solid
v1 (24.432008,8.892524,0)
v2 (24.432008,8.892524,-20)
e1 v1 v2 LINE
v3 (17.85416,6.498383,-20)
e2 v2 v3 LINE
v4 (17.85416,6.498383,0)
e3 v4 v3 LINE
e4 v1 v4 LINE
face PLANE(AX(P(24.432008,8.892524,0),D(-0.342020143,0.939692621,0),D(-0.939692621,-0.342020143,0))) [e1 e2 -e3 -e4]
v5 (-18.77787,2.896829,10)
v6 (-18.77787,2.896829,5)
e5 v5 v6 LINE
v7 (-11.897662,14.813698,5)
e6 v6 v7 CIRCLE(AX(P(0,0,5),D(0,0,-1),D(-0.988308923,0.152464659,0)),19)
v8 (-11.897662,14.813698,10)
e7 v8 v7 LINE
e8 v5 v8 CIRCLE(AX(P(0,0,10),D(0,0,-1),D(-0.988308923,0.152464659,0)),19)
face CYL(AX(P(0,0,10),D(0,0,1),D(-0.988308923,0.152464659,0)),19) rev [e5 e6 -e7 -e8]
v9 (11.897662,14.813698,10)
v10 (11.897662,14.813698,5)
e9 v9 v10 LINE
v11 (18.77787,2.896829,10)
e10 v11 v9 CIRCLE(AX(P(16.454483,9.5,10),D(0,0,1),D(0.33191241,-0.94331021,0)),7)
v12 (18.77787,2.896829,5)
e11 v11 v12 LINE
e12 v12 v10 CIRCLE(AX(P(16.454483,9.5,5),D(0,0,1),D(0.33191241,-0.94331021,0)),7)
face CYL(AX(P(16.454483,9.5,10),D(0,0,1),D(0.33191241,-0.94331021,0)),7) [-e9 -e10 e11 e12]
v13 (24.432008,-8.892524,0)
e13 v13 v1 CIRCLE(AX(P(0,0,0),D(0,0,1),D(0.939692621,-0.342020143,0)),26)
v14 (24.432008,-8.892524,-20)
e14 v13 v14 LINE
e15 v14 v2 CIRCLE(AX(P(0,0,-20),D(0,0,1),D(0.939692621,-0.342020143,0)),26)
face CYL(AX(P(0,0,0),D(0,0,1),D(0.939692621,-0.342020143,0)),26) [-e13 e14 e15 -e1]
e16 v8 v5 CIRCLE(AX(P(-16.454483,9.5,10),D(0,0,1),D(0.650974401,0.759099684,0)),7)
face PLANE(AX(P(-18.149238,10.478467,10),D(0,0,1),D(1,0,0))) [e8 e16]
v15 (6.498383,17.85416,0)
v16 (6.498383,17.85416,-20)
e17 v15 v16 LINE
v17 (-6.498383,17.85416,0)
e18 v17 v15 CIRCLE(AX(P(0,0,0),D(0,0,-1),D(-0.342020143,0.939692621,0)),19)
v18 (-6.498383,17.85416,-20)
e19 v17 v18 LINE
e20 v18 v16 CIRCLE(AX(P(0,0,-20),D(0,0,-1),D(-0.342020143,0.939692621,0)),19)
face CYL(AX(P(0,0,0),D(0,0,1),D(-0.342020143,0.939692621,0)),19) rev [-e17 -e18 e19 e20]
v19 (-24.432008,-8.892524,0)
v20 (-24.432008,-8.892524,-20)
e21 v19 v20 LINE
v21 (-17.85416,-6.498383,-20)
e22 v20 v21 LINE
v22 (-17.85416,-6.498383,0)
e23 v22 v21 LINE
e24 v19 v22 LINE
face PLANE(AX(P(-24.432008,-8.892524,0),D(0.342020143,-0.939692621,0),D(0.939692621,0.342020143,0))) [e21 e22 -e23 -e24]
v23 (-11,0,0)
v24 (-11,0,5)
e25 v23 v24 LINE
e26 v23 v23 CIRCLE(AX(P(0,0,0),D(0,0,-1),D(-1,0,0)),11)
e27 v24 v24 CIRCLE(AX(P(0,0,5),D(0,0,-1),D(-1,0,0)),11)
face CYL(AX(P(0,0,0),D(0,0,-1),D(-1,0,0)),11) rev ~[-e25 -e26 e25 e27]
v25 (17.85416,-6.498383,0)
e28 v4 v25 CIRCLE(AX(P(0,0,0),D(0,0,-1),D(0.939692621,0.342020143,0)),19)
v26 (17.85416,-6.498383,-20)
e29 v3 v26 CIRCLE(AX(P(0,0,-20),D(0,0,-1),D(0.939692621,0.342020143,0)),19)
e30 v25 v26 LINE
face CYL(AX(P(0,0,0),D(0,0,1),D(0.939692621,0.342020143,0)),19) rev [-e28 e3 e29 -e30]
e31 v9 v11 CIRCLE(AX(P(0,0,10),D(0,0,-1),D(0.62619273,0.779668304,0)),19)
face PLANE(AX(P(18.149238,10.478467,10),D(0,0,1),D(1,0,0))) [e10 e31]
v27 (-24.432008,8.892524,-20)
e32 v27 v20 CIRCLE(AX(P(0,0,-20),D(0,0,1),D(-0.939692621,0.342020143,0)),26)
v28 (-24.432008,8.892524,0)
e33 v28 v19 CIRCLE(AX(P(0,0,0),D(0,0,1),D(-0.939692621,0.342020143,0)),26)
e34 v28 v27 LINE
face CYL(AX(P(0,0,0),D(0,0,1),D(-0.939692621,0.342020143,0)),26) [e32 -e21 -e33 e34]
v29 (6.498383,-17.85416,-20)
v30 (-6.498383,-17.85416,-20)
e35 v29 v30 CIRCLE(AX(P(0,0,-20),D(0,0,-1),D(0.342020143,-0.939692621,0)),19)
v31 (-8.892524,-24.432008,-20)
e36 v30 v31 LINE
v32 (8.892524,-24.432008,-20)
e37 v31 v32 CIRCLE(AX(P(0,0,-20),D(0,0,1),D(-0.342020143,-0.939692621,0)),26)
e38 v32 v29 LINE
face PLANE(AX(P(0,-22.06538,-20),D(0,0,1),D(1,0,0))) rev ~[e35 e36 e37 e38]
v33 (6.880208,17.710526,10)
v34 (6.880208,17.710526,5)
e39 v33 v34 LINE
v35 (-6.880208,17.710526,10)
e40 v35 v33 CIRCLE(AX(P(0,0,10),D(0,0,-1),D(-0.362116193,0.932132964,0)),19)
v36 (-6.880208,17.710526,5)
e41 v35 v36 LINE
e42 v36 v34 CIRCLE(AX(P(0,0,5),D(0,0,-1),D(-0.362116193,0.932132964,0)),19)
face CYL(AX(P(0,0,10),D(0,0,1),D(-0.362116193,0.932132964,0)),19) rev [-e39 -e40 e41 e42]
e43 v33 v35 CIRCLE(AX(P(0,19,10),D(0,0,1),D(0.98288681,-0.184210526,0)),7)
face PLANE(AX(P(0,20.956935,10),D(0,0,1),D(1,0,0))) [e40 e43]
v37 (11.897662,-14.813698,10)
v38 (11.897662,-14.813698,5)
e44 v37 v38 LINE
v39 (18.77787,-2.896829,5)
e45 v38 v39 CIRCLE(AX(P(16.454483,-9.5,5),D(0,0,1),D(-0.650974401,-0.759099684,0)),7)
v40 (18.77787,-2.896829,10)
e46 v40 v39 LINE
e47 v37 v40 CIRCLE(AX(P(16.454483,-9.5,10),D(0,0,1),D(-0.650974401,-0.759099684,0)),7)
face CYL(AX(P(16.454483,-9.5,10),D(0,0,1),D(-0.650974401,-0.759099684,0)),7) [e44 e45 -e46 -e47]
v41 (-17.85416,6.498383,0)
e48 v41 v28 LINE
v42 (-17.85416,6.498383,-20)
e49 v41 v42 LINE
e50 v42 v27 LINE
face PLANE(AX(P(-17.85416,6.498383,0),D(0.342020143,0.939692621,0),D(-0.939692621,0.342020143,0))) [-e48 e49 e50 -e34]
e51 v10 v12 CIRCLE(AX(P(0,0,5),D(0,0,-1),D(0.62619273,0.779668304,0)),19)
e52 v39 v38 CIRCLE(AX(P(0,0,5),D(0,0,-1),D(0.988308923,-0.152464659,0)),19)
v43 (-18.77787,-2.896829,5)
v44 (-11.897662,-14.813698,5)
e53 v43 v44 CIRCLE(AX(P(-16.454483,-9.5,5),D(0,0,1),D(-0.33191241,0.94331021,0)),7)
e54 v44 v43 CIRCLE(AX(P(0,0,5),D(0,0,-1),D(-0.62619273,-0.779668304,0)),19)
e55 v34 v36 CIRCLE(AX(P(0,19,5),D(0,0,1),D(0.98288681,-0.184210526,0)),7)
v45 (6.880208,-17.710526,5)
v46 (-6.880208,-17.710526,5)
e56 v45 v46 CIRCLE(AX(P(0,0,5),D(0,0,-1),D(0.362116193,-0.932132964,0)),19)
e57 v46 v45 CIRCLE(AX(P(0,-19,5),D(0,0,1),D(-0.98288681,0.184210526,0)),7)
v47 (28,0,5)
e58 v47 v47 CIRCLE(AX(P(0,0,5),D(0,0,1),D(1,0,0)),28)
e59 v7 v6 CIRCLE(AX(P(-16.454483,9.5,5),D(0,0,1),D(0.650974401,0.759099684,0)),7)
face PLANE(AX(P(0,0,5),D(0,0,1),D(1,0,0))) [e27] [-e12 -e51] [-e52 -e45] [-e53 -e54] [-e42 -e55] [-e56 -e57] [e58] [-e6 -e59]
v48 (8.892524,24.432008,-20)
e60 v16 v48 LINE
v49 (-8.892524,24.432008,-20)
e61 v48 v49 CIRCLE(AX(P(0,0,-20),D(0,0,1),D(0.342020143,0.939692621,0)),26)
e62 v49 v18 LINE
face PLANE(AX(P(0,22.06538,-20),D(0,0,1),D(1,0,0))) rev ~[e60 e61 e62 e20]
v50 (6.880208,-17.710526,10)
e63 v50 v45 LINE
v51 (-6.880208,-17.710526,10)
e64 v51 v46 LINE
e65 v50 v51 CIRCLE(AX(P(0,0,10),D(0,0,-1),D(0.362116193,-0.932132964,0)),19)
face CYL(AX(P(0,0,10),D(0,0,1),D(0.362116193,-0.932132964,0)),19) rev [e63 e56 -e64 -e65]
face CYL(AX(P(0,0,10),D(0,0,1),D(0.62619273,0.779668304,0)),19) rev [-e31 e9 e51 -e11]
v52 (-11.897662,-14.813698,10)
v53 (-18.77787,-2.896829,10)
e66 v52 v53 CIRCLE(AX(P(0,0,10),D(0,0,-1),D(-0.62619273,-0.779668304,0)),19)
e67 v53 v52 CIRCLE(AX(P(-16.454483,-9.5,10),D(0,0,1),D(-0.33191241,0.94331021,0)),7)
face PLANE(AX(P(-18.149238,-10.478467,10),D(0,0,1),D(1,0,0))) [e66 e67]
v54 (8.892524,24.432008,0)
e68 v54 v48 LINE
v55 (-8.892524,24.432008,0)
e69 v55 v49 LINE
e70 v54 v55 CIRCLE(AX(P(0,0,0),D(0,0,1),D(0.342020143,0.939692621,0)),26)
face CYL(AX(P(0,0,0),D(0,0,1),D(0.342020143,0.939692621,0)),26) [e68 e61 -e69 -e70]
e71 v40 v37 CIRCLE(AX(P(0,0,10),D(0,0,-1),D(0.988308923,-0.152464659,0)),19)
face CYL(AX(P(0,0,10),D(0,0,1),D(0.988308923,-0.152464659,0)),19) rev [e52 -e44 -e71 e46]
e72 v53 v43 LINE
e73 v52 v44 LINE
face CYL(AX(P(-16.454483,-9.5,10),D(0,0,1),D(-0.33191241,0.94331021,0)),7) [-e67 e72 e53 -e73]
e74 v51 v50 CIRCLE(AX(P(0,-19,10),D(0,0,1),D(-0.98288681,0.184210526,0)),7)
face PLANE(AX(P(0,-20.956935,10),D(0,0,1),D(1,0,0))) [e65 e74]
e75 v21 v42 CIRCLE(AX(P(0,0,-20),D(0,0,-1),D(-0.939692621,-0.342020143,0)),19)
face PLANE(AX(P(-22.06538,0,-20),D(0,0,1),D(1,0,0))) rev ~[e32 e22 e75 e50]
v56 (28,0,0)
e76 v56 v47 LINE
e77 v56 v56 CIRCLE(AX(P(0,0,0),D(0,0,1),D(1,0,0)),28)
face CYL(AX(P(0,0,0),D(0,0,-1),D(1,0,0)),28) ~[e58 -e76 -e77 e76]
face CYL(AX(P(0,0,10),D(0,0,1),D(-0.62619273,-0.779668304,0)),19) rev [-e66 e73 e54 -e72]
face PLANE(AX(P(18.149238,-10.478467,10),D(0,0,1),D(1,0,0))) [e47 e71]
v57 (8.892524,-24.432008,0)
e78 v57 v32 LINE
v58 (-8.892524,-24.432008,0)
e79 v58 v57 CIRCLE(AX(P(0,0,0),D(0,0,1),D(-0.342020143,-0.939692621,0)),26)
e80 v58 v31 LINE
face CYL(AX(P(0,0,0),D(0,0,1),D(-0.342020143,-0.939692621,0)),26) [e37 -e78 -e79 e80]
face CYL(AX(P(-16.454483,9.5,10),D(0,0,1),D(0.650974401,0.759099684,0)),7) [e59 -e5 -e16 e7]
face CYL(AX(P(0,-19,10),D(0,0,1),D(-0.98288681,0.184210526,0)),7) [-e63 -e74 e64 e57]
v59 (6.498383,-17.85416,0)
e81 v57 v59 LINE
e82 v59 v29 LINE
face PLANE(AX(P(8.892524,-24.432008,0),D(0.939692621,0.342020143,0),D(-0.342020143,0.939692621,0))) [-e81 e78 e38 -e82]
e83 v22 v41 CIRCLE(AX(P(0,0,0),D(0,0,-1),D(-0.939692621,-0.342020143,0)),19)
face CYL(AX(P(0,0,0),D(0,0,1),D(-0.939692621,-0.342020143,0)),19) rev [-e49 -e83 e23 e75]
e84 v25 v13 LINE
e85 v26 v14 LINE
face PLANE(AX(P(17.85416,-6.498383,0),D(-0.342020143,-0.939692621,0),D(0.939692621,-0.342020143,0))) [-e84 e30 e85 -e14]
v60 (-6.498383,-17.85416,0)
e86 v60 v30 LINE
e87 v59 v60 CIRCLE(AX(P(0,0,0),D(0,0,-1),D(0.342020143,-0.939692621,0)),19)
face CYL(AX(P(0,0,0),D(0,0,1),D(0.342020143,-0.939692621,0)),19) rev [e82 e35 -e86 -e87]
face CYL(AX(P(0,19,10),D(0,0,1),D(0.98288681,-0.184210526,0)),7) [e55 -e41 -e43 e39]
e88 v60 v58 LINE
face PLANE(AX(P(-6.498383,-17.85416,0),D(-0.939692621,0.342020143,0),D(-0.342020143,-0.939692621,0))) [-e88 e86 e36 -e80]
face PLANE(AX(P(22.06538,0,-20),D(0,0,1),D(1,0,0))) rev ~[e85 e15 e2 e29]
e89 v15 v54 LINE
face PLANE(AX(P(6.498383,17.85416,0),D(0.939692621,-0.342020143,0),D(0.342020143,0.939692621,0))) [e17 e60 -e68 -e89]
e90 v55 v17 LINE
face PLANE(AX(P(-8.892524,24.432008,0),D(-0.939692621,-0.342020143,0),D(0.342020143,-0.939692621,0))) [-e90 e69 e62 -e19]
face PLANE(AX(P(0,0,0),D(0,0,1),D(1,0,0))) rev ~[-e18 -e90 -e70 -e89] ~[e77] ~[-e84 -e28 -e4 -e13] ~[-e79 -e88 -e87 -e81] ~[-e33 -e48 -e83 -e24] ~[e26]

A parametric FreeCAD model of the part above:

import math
import FreeCAD as App
import Part
import Sketcher

V = App.Vector
Q = App.Units.Quantity

doc = App.newDocument("Part")
body = doc.addObject("PartDesign::Body", "Body")

sketch1 = body.newObject("Sketcher::SketchObject", "Sketch")
sketch1.AttachmentSupport = (doc.getObject("XY_Plane"), [""])
sketch1.MapMode = "FlatFace"
sketch1.addGeometry(Part.Circle(V(0, 0, 0), V(0, 0, 1), 28), False)
sketch1.addConstraint([
    Sketcher.Constraint("Coincident", 0, 3, -1, 1),
    Sketcher.Constraint("Diameter", 0, 56.0),
])
pad1 = body.newObject("PartDesign::Pad", "Pad")
pad1.Profile = sketch1
pad1.Length = 5

sketch2 = body.newObject("Sketcher::SketchObject", "Sketch001")
sketch2.AttachmentSupport = (doc.getObject("XY_Plane"), [""])
sketch2.MapMode = "FlatFace"
sketch2.addGeometry([
    Part.LineSegment(V(9, 24, 0), V(6, 18, 0)),
    Part.ArcOfCircle(Part.Circle(V(0, 0, 0), V(0, 0, 1), 19), math.radians(70), math.radians(110)),
    Part.LineSegment(V(-6, 18, 0), V(-9, 24, 0)),
    Part.ArcOfCircle(Part.Circle(V(0, 0, 0), V(0, 0, 1), 26), math.radians(70), math.radians(110)),
    Part.LineSegment(V(-24, 9, 0), V(-18, 6, 0)),
    Part.ArcOfCircle(Part.Circle(V(0, 0, 0), V(0, 0, 1), 19), math.radians(160), math.radians(200)),
    Part.LineSegment(V(-18, -6, 0), V(-24, -9, 0)),
    Part.ArcOfCircle(Part.Circle(V(0, 0, 0), V(0, 0, 1), 26), math.radians(160), math.radians(200)),
    Part.LineSegment(V(-9, -24, 0), V(-6, -18, 0)),
    Part.ArcOfCircle(Part.Circle(V(0, 0, 0), V(0, 0, 1), 19), math.radians(-110), math.radians(-70)),
    Part.LineSegment(V(6, -18, 0), V(9, -24, 0)),
    Part.ArcOfCircle(Part.Circle(V(0, 0, 0), V(0, 0, 1), 26), math.radians(-110), math.radians(-70)),
    Part.LineSegment(V(24, -9, 0), V(18, -6, 0)),
    Part.ArcOfCircle(Part.Circle(V(0, 0, 0), V(0, 0, 1), 19), math.radians(-20), math.radians(20)),
    Part.LineSegment(V(18, 6, 0), V(24, 9, 0)),
    Part.ArcOfCircle(Part.Circle(V(0, 0, 0), V(0, 0, 1), 26), math.radians(-20), math.radians(20)),
], False)
sketch2.addConstraint([
    Sketcher.Constraint("Coincident", 0, 2, 1, 1),
    Sketcher.Constraint("Coincident", 1, 2, 2, 1),
    Sketcher.Constraint("Coincident", 2, 2, 3, 2),
    Sketcher.Constraint("Coincident", 3, 1, 0, 1),
    Sketcher.Constraint("Coincident", 4, 2, 5, 1),
    Sketcher.Constraint("Coincident", 5, 2, 6, 1),
    Sketcher.Constraint("Coincident", 6, 2, 7, 2),
    Sketcher.Constraint("Coincident", 7, 1, 4, 1),
    Sketcher.Constraint("Coincident", 8, 2, 9, 1),
    Sketcher.Constraint("Coincident", 9, 2, 10, 1),
    Sketcher.Constraint("Coincident", 10, 2, 11, 2),
    Sketcher.Constraint("Coincident", 11, 1, 8, 1),
    Sketcher.Constraint("Coincident", 12, 2, 13, 1),
    Sketcher.Constraint("Coincident", 13, 2, 14, 1),
    Sketcher.Constraint("Coincident", 14, 2, 15, 2),
    Sketcher.Constraint("Coincident", 15, 1, 12, 1),
    Sketcher.Constraint("Coincident", 1, 3, -1, 1),
    Sketcher.Constraint("Coincident", 3, 3, -1, 1),
    Sketcher.Constraint("Coincident", 5, 3, -1, 1),
    Sketcher.Constraint("Coincident", 7, 3, -1, 1),
    Sketcher.Constraint("Coincident", 9, 3, -1, 1),
    Sketcher.Constraint("Coincident", 11, 3, -1, 1),
    Sketcher.Constraint("Coincident", 13, 3, -1, 1),
    Sketcher.Constraint("Coincident", 15, 3, -1, 1),
    Sketcher.Constraint("Equal", 1, 5),
    Sketcher.Constraint("Equal", 3, 7),
    Sketcher.Constraint("Equal", 5, 9),
    Sketcher.Constraint("Equal", 7, 11),
    Sketcher.Constraint("Equal", 9, 13),
    Sketcher.Constraint("Equal", 11, 15),
    Sketcher.Constraint("Perpendicular", 0, 4),
    Sketcher.Constraint("Perpendicular", 2, 6),
    Sketcher.Constraint("Perpendicular", 4, 8),
    Sketcher.Constraint("Perpendicular", 6, 10),
    Sketcher.Constraint("Perpendicular", 8, 12),
    Sketcher.Constraint("Perpendicular", 10, 14),
    Sketcher.Constraint("Horizontal", 0, 2, 1, 2),
    Sketcher.Constraint("Horizontal", 2, 2, 3, 1),
    Sketcher.Constraint("Horizontal", 8, 2, 9, 2),
    Sketcher.Constraint("Horizontal", 5, 2, 12, 2),
    Sketcher.Constraint("Horizontal", 4, 2, 13, 2),
    Sketcher.Constraint("Vertical", 4, 2, 5, 2),
    Sketcher.Constraint("Vertical", 1, 2, 8, 2),
    Sketcher.Constraint("Radius", 1, 19.0),
    Sketcher.Constraint("Radius", 3, 26.0),
    Sketcher.Constraint("Angle", 0, Q("-110 deg")),
    Sketcher.Constraint("DistanceY", -1, 1, 0, 2, 17.85416),
    Sketcher.Constraint("DistanceX", 4, 2, -1, 1, 17.85416),
])
pad2 = body.newObject("PartDesign::Pad", "Pad001")
pad2.Profile = sketch2
pad2.Length = 20
pad2.Reversed = True

sketch3 = body.newObject("Sketcher::SketchObject", "Sketch002")
sketch3.AttachmentSupport = (doc.getObject("XY_Plane"), [""])
sketch3.MapMode = "FlatFace"
sketch3.addGeometry(Part.Circle(V(0, 0, 0), V(0, 0, 1), 11), False)
sketch3.addConstraint([
    Sketcher.Constraint("Coincident", 0, 3, -1, 1),
    Sketcher.Constraint("Diameter", 0, 22.0),
])
pocket1 = body.newObject("PartDesign::Pocket", "Pocket")
pocket1.Profile = sketch3
pocket1.Length = 5
pocket1.Reversed = True

sketch4 = body.newObject("Sketcher::SketchObject", "Sketch003")
sketch4.AttachmentSupport = (doc.getObject("XY_Plane"), [""])
sketch4.MapMode = "FlatFace"
sketch4.AttachmentOffset = App.Placement(V(0, 0, 10), App.Rotation())
sketch4.addGeometry([
    Part.ArcOfCircle(Part.Circle(V(0, 19, 0), V(0, 0, 1), 7), math.radians(-11), math.radians(191)),
    Part.ArcOfCircle(Part.Circle(V(0, 0, 0), V(0, 0, 1), 19), math.radians(69), math.radians(111)),
    Part.ArcOfCircle(Part.Circle(V(16, 10, 0), V(0, 0, 1), 7), math.radians(-71), math.radians(131)),
    Part.ArcOfCircle(Part.Circle(V(0, 0, 0), V(0, 0, 1), 19), math.radians(9), math.radians(51)),
    Part.ArcOfCircle(Part.Circle(V(16, -10, 0), V(0, 0, 1), 7), math.radians(-131), math.radians(71)),
    Part.ArcOfCircle(Part.Circle(V(0, 0, 0), V(0, 0, 1), 19), math.radians(-51), math.radians(-9)),
    Part.ArcOfCircle(Part.Circle(V(0, -19, 0), V(0, 0, 1), 7), math.radians(169), math.radians(371)),
    Part.ArcOfCircle(Part.Circle(V(0, 0, 0), V(0, 0, 1), 19), math.radians(-111), math.radians(-69)),
    Part.ArcOfCircle(Part.Circle(V(-16, -10, 0), V(0, 0, 1), 7), math.radians(109), math.radians(311)),
    Part.ArcOfCircle(Part.Circle(V(0, 0, 0), V(0, 0, 1), 19), math.radians(-171), math.radians(-129)),
    Part.ArcOfCircle(Part.Circle(V(-16, 10, 0), V(0, 0, 1), 7), math.radians(49), math.radians(251)),
    Part.ArcOfCircle(Part.Circle(V(0, 0, 0), V(0, 0, 1), 19), math.radians(129), math.radians(171)),
], False)
sketch4.addConstraint([
    Sketcher.Constraint("Coincident", 0, 1, 1, 1),
    Sketcher.Constraint("Coincident", 1, 2, 0, 2),
    Sketcher.Constraint("Coincident", 2, 1, 3, 1),
    Sketcher.Constraint("Coincident", 3, 2, 2, 2),
    Sketcher.Constraint("Coincident", 4, 1, 5, 1),
    Sketcher.Constraint("Coincident", 5, 2, 4, 2),
    Sketcher.Constraint("Coincident", 6, 1, 7, 1),
    Sketcher.Constraint("Coincident", 7, 2, 6, 2),
    Sketcher.Constraint("Coincident", 8, 1, 9, 1),
    Sketcher.Constraint("Coincident", 9, 2, 8, 2),
    Sketcher.Constraint("Coincident", 10, 1, 11, 1),
    Sketcher.Constraint("Coincident", 11, 2, 10, 2),
    Sketcher.Constraint("Coincident", 1, 3, -1, 1),
    Sketcher.Constraint("Coincident", 3, 3, -1, 1),
    Sketcher.Constraint("Coincident", 5, 3, -1, 1),
    Sketcher.Constraint("Coincident", 7, 3, -1, 1),
    Sketcher.Constraint("Coincident", 9, 3, -1, 1),
    Sketcher.Constraint("Coincident", 11, 3, -1, 1),
    Sketcher.Constraint("Equal", 0, 2),
    Sketcher.Constraint("Equal", 1, 3),
    Sketcher.Constraint("Equal", 2, 4),
    Sketcher.Constraint("Equal", 3, 5),
    Sketcher.Constraint("Equal", 4, 6),
    Sketcher.Constraint("Equal", 5, 7),
    Sketcher.Constraint("Equal", 6, 8),
    Sketcher.Constraint("Equal", 7, 9),
    Sketcher.Constraint("Equal", 8, 10),
    Sketcher.Constraint("Equal", 9, 11),
    Sketcher.Constraint("Symmetric", 0, 3, 6, 3, -1, 1),
    Sketcher.Constraint("Symmetric", 2, 3, 8, 3, -1, 1),
    Sketcher.Constraint("Symmetric", 4, 3, 10, 3, -1, 1),
    Sketcher.Constraint("Symmetric", 4, 3, 8, 3, -2),
    Sketcher.Constraint("PointOnObject", 0, 3, -2),
    Sketcher.Constraint("Radius", 0, 7.0),
    Sketcher.Constraint("Radius", 1, 19.0),
    Sketcher.Constraint("DistanceY", -1, 1, 0, 3, 19.0),
    Sketcher.Constraint("DistanceY", 4, 3, 2, 3, 19.0),
    Sketcher.Constraint("DistanceX", -1, 1, 2, 1, 18.77787),
])
pad3 = body.newObject("PartDesign::Pad", "Pad002")
pad3.Profile = sketch4
pad3.Length = 5
pad3.Reversed = True

doc.recompute()
